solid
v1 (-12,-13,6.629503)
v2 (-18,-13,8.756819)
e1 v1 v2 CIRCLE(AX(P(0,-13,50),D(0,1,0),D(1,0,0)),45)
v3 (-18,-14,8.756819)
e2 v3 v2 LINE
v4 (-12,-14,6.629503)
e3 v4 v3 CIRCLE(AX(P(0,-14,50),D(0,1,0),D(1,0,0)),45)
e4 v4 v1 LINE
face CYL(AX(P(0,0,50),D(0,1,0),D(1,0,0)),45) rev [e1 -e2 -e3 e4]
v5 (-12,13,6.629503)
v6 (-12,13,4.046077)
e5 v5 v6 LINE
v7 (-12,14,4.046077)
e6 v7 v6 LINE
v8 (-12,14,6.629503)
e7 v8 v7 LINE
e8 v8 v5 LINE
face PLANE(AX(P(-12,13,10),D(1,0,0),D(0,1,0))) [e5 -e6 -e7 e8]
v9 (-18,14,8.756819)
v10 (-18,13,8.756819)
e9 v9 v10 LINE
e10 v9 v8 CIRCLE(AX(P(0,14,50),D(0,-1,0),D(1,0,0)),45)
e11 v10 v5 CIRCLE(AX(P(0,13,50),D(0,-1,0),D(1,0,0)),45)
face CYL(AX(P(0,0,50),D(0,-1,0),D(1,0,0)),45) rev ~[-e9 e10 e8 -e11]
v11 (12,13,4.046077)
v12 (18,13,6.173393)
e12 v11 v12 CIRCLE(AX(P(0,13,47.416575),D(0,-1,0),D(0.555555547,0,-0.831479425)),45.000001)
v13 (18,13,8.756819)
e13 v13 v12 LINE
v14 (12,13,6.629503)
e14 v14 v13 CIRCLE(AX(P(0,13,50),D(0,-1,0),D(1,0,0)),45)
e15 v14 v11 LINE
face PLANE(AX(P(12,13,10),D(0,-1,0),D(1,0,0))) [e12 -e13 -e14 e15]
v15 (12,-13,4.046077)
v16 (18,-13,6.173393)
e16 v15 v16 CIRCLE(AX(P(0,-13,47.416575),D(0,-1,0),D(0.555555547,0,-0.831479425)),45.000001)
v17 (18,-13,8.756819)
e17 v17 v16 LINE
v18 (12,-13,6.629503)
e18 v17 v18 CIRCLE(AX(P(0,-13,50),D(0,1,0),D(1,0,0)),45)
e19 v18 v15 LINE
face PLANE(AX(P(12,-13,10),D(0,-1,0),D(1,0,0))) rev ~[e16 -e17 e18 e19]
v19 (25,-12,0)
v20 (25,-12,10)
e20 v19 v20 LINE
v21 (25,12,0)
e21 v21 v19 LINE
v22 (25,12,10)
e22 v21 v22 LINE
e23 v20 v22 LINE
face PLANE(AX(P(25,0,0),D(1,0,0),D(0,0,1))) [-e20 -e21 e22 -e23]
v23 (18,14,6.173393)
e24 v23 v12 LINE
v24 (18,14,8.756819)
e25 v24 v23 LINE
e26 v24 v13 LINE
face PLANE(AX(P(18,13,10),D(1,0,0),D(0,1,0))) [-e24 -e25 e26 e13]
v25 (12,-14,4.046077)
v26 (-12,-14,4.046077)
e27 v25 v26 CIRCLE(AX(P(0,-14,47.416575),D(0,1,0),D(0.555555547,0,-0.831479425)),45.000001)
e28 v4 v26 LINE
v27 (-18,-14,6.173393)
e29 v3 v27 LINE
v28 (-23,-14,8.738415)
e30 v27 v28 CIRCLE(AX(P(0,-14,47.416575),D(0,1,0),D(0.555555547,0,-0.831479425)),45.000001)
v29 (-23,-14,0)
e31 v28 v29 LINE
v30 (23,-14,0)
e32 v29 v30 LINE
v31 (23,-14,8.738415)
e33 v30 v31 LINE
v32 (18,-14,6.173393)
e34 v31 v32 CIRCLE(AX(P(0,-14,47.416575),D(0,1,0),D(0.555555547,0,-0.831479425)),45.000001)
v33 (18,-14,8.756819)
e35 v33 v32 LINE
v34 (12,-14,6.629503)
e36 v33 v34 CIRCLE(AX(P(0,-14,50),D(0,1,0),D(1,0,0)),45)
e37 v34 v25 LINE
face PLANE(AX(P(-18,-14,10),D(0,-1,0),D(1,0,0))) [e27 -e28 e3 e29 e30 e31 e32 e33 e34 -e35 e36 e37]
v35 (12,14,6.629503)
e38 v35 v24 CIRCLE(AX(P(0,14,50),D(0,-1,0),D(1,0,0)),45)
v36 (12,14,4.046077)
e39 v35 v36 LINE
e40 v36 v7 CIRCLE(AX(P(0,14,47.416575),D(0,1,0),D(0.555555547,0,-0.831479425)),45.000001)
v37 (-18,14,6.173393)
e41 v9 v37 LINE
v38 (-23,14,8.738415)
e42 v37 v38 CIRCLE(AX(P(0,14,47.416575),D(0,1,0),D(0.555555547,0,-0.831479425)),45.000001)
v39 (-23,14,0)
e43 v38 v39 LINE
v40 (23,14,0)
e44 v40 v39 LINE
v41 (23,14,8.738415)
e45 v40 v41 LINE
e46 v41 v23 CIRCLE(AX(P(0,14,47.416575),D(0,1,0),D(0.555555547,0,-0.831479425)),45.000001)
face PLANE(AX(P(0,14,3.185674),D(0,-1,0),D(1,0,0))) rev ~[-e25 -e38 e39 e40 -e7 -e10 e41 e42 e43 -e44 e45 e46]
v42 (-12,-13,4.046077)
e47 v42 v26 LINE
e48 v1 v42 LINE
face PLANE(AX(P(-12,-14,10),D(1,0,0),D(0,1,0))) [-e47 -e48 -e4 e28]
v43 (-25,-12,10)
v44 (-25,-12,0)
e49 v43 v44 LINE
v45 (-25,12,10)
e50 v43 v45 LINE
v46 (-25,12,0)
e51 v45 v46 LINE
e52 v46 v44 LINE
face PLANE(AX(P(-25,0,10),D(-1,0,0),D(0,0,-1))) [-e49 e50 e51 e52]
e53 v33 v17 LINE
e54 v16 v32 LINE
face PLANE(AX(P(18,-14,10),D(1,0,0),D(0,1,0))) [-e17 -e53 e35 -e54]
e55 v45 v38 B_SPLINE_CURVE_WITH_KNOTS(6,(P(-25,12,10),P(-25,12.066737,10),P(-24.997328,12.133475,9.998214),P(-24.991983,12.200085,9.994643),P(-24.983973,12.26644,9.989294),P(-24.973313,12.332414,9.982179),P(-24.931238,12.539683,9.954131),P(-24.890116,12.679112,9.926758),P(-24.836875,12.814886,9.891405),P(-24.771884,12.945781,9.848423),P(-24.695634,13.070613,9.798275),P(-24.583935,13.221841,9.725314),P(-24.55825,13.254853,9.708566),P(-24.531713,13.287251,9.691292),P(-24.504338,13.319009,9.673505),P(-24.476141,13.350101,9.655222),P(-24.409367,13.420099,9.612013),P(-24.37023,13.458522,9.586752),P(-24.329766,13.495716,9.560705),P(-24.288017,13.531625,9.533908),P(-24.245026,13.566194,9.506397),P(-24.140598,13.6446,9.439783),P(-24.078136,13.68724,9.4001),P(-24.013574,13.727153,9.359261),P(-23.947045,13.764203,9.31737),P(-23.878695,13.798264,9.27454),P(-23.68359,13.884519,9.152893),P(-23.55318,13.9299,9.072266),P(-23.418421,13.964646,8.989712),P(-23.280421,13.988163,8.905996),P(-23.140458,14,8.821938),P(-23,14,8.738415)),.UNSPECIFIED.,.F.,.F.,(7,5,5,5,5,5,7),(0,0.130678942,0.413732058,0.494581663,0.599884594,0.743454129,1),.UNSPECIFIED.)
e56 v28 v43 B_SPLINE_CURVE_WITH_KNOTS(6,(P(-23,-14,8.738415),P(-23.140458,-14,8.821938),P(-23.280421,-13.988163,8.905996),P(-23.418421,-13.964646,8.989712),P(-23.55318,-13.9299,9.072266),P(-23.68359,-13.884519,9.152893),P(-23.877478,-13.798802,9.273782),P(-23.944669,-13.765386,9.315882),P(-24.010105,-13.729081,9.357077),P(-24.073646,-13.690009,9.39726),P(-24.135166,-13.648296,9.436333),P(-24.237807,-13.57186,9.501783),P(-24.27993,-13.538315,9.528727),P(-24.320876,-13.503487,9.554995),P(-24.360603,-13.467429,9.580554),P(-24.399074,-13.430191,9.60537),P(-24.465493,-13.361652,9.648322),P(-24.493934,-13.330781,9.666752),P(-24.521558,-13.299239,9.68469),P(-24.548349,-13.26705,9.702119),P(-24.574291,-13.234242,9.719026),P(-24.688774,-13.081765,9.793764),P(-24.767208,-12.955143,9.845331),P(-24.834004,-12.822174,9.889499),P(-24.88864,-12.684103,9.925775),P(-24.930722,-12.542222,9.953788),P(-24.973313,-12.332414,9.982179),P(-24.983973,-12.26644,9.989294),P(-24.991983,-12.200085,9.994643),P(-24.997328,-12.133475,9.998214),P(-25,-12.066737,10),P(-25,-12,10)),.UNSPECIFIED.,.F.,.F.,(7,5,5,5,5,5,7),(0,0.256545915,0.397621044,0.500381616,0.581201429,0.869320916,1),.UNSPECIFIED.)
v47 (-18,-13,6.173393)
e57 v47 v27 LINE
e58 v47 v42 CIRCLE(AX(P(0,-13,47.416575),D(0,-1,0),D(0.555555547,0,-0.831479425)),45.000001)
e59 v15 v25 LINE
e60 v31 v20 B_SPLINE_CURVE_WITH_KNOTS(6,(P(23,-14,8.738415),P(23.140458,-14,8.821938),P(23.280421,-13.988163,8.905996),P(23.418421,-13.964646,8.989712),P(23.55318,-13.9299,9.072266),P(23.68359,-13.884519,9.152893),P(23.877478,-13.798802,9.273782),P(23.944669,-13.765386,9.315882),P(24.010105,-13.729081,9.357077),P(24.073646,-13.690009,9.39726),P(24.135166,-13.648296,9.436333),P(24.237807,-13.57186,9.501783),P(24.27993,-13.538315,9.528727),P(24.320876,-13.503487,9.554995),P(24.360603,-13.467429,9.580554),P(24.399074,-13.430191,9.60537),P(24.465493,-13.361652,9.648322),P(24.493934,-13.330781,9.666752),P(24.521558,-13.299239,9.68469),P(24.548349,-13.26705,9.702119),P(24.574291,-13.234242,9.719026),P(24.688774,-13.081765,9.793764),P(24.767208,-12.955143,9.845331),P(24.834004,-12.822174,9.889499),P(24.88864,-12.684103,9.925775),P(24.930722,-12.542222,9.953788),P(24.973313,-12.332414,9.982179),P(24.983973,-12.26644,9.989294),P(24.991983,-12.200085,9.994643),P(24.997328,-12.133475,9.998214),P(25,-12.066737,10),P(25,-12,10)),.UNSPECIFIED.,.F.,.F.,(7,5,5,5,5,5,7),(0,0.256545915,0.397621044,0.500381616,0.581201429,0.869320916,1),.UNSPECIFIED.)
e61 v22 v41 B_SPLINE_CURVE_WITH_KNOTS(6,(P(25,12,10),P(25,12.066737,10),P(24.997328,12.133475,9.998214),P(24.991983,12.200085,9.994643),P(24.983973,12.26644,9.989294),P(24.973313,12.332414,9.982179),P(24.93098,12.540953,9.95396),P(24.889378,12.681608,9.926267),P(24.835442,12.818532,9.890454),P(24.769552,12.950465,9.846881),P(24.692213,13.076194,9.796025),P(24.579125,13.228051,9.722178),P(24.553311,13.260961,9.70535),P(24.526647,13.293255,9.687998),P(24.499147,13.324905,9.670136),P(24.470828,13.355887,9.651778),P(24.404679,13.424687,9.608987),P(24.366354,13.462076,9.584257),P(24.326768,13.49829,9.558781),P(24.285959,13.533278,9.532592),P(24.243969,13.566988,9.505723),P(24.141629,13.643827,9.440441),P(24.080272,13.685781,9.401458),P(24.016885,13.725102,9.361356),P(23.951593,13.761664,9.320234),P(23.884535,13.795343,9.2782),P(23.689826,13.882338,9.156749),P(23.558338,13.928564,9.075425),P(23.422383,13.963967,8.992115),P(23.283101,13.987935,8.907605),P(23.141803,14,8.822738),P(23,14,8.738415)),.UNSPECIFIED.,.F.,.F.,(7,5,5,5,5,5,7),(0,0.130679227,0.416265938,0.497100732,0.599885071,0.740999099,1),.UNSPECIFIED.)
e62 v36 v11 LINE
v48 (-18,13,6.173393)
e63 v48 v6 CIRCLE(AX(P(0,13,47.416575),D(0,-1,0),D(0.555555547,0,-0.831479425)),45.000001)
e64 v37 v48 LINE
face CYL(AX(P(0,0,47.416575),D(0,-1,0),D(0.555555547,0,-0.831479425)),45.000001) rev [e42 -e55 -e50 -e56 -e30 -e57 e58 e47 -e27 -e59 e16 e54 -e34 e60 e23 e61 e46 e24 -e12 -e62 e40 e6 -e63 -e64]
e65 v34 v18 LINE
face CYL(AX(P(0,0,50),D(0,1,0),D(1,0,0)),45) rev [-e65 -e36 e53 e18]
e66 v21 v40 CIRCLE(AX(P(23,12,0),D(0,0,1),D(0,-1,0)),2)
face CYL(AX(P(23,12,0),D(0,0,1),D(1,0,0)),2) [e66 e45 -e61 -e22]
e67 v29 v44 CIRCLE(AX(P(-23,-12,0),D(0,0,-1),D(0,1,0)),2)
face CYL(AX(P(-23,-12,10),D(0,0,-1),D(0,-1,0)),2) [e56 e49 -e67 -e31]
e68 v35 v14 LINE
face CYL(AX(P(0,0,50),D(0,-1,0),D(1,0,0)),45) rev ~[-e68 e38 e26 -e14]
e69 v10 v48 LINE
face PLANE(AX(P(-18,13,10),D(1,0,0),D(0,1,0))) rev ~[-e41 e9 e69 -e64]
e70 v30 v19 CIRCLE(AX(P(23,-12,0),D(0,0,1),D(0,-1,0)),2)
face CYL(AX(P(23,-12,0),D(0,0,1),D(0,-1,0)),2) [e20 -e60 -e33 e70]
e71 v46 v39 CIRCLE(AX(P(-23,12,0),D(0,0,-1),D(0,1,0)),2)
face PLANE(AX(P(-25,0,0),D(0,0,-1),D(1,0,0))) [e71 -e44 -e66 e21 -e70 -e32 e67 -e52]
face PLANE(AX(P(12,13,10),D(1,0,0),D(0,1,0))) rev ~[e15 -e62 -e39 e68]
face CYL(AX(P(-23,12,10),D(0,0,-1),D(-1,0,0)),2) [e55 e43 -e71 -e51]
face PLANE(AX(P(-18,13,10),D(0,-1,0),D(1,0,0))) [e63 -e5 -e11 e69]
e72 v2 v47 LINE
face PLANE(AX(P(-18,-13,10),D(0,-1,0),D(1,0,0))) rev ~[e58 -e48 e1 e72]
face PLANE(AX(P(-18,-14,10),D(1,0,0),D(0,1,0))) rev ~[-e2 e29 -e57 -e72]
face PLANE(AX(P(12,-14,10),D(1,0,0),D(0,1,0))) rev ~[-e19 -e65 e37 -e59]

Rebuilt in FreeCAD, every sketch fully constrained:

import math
import FreeCAD as App
import Part
import Sketcher

V = App.Vector


def edges_at(feature, points):
    """Names of the edges that pass closest to the given points."""
    edges = feature.Shape.Edges
    near = lambda p: min(range(len(edges)), key=lambda i: edges[i].distToShape(Part.Vertex(*p))[0])
    return sorted({f"Edge{near(p) + 1}" for p in points})

doc = App.newDocument("Part")
body = doc.addObject("PartDesign::Body", "Body")

sketch1 = body.newObject("Sketcher::SketchObject", "Sketch")
sketch1.AttachmentSupport = (doc.getObject("XZ_Plane"), [""])
sketch1.MapMode = "FlatFace"
sketch1.addGeometry(Part.LineSegment(V(-25, 10, 0), V(-25, 0, 0)), False)
sketch1.addGeometry(Part.LineSegment(V(-25, 0, 0), V(25, 0, 0)), False)
sketch1.addGeometry(Part.LineSegment(V(25, 0, 0), V(25, 10, 0)), False)
sketch1.addGeometry(Part.ArcOfCircle(Part.Circle(V(0, 47, 0), V(0, 0, 1), 45), math.radians(-124), math.radians(-56)), False)
sketch1.addConstraint(Sketcher.Constraint("Coincident", 0, 2, 1, 1))
sketch1.addConstraint(Sketcher.Constraint("Coincident", 1, 2, 2, 1))
sketch1.addConstraint(Sketcher.Constraint("Coincident", 2, 2, 3, 2))
sketch1.addConstraint(Sketcher.Constraint("Coincident", 3, 1, 0, 1))
sketch1.addConstraint(Sketcher.Constraint("Vertical", 0))
sketch1.addConstraint(Sketcher.Constraint("Horizontal", 1))
sketch1.addConstraint(Sketcher.Constraint("Vertical", 2))
sketch1.addConstraint(Sketcher.Constraint("Symmetric", 0, 2, 1, 2, -1, 1))
sketch1.addConstraint(Sketcher.Constraint("PointOnObject", 3, 3, -2))
sketch1.addConstraint(Sketcher.Constraint("Radius", 3, 45.000001))
sketch1.addConstraint(Sketcher.Constraint("DistanceX", 1, 1, 1, 2, 50.0))
sketch1.addConstraint(Sketcher.Constraint("DistanceY", 0, 2, 0, 1, 10.0))
pad1 = body.newObject("PartDesign::Pad", "Pad")
pad1.Profile = sketch1
pad1.Type = "TwoLengths"
pad1.Length = 14
pad1.Length2 = 14

sketch2 = body.newObject("Sketcher::SketchObject", "Sketch001")
sketch2.AttachmentSupport = (doc.getObject("XY_Plane"), [""])
sketch2.MapMode = "FlatFace"
sketch2.AttachmentOffset = App.Placement(V(0, 0, 10), App.Rotation())
sketch2.addGeometry(Part.LineSegment(V(-18, -13, 0), V(-18, -14, 0)), False)
sketch2.addGeometry(Part.LineSegment(V(-18, -14, 0), V(-12, -14, 0)), False)
sketch2.addGeometry(Part.LineSegment(V(-12, -14, 0), V(-12, -13, 0)), False)
sketch2.addGeometry(Part.LineSegment(V(-12, -13, 0), V(-18, -13, 0)), False)
sketch2.addGeometry(Part.LineSegment(V(-18, 14, 0), V(-18, 13, 0)), False)
sketch2.addGeometry(Part.LineSegment(V(-18, 13, 0), V(-12, 13, 0)), False)
sketch2.addGeometry(Part.LineSegment(V(-12, 13, 0), V(-12, 14, 0)), False)
sketch2.addGeometry(Part.LineSegment(V(-12, 14, 0), V(-18, 14, 0)), False)
sketch2.addGeometry(Part.LineSegment(V(12, -13, 0), V(12, -14, 0)), False)
sketch2.addGeometry(Part.LineSegment(V(12, -14, 0), V(18, -14, 0)), False)
sketch2.addGeometry(Part.LineSegment(V(18, -14, 0), V(18, -13, 0)), False)
sketch2.addGeometry(Part.LineSegment(V(18, -13, 0), V(12, -13, 0)), False)
sketch2.addGeometry(Part.LineSegment(V(12, 14, 0), V(12, 13, 0)), False)
sketch2.addGeometry(Part.LineSegment(V(12, 13, 0), V(18, 13, 0)), False)
sketch2.addGeometry(Part.LineSegment(V(18, 13, 0), V(18, 14, 0)), False)
sketch2.addGeometry(Part.LineSegment(V(18, 14, 0), V(12, 14, 0)), False)
sketch2.addConstraint(Sketcher.Constraint("Coincident", 0, 2, 1, 1))
sketch2.addConstraint(Sketcher.Constraint("Coincident", 1, 2, 2, 1))
sketch2.addConstraint(Sketcher.Constraint("Coincident", 2, 2, 3, 1))
sketch2.addConstraint(Sketcher.Constraint("Coincident", 3, 2, 0, 1))
sketch2.addConstraint(Sketcher.Constraint("Coincident", 4, 2, 5, 1))
sketch2.addConstraint(Sketcher.Constraint("Coincident", 5, 2, 6, 1))
sketch2.addConstraint(Sketcher.Constraint("Coincident", 6, 2, 7, 1))
sketch2.addConstraint(Sketcher.Constraint("Coincident", 7, 2, 4, 1))
sketch2.addConstraint(Sketcher.Constraint("Coincident", 8, 2, 9, 1))
sketch2.addConstraint(Sketcher.Constraint("Coincident", 9, 2, 10, 1))
sketch2.addConstraint(Sketcher.Constraint("Coincident", 10, 2, 11, 1))
sketch2.addConstraint(Sketcher.Constraint("Coincident", 11, 2, 8, 1))
sketch2.addConstraint(Sketcher.Constraint("Coincident", 12, 2, 13, 1))
sketch2.addConstraint(Sketcher.Constraint("Coincident", 13, 2, 14, 1))
sketch2.addConstraint(Sketcher.Constraint("Coincident", 14, 2, 15, 1))
sketch2.addConstraint(Sketcher.Constraint("Coincident", 15, 2, 12, 1))
sketch2.addConstraint(Sketcher.Constraint("Vertical", 0))
sketch2.addConstraint(Sketcher.Constraint("Horizontal", 1))
sketch2.addConstraint(Sketcher.Constraint("Vertical", 2))
sketch2.addConstraint(Sketcher.Constraint("Horizontal", 3))
sketch2.addConstraint(Sketcher.Constraint("Vertical", 4))
sketch2.addConstraint(Sketcher.Constraint("Horizontal", 5))
sketch2.addConstraint(Sketcher.Constraint("Vertical", 6))
sketch2.addConstraint(Sketcher.Constraint("Horizontal", 7))
sketch2.addConstraint(Sketcher.Constraint("Vertical", 8))
sketch2.addConstraint(Sketcher.Constraint("Horizontal", 9))
sketch2.addConstraint(Sketcher.Constraint("Vertical", 10))
sketch2.addConstraint(Sketcher.Constraint("Horizontal", 11))
sketch2.addConstraint(Sketcher.Constraint("Vertical", 12))
sketch2.addConstraint(Sketcher.Constraint("Horizontal", 13))
sketch2.addConstraint(Sketcher.Constraint("Vertical", 14))
sketch2.addConstraint(Sketcher.Constraint("Horizontal", 15))
sketch2.addConstraint(Sketcher.Constraint("Symmetric", 6, 2, 8, 2, -1, 1))
sketch2.addConstraint(Sketcher.Constraint("Symmetric", 4, 2, 10, 2, -1, 1))
sketch2.addConstraint(Sketcher.Constraint("Symmetric", 2, 2, 12, 2, -1, 1))
sketch2.addConstraint(Sketcher.Constraint("Symmetric", 0, 2, 14, 2, -1, 1))
sketch2.addConstraint(Sketcher.Constraint("Symmetric", 1, 2, 8, 2, -2))
sketch2.addConstraint(Sketcher.Constraint("Symmetric", 3, 2, 10, 2, -2))
sketch2.addConstraint(Sketcher.Constraint("DistanceX", 1, 1, 1, 2, 6.0))
sketch2.addConstraint(Sketcher.Constraint("DistanceY", 0, 2, 0, 1, 1.0))
sketch2.addConstraint(Sketcher.Constraint("DistanceX", 0, 2, -1, 1, 18.0))
sketch2.addConstraint(Sketcher.Constraint("DistanceY", 0, 2, -1, 1, 14.0))
pad2 = body.newObject("PartDesign::Pad", "Pad001")
pad2.Profile = sketch2
pad2.Length = 10
pad2.Reversed = True

sketch3 = body.newObject("Sketcher::SketchObject", "Sketch002")
sketch3.AttachmentSupport = (doc.getObject("XZ_Plane"), [""])
sketch3.MapMode = "FlatFace"
sketch3.addGeometry(Part.Circle(V(0, 50, 0), V(0, 0, 1), 45), False)
sketch3.addConstraint(Sketcher.Constraint("PointOnObject", 0, 3, -2))
sketch3.addConstraint(Sketcher.Constraint("Diameter", 0, 90.0))
sketch3.addConstraint(Sketcher.Constraint("DistanceY", -1, 1, 0, 3, 50.0))
pocket1 = body.newObject("PartDesign::Pocket", "Pocket")
pocket1.Profile = sketch3
pocket1.Type = "ThroughAll"
pocket1.Midplane = True
doc.recompute()

fillet = body.newObject("PartDesign::Fillet", "Fillet")
fillet.Base = (pocket1, edges_at(pocket1, [
    (-25, 14, 5),
    (-25, -14, 5),
    (25, -14, 5),
    (25, 14, 5),
]))
fillet.Radius = 2

doc.recompute()
